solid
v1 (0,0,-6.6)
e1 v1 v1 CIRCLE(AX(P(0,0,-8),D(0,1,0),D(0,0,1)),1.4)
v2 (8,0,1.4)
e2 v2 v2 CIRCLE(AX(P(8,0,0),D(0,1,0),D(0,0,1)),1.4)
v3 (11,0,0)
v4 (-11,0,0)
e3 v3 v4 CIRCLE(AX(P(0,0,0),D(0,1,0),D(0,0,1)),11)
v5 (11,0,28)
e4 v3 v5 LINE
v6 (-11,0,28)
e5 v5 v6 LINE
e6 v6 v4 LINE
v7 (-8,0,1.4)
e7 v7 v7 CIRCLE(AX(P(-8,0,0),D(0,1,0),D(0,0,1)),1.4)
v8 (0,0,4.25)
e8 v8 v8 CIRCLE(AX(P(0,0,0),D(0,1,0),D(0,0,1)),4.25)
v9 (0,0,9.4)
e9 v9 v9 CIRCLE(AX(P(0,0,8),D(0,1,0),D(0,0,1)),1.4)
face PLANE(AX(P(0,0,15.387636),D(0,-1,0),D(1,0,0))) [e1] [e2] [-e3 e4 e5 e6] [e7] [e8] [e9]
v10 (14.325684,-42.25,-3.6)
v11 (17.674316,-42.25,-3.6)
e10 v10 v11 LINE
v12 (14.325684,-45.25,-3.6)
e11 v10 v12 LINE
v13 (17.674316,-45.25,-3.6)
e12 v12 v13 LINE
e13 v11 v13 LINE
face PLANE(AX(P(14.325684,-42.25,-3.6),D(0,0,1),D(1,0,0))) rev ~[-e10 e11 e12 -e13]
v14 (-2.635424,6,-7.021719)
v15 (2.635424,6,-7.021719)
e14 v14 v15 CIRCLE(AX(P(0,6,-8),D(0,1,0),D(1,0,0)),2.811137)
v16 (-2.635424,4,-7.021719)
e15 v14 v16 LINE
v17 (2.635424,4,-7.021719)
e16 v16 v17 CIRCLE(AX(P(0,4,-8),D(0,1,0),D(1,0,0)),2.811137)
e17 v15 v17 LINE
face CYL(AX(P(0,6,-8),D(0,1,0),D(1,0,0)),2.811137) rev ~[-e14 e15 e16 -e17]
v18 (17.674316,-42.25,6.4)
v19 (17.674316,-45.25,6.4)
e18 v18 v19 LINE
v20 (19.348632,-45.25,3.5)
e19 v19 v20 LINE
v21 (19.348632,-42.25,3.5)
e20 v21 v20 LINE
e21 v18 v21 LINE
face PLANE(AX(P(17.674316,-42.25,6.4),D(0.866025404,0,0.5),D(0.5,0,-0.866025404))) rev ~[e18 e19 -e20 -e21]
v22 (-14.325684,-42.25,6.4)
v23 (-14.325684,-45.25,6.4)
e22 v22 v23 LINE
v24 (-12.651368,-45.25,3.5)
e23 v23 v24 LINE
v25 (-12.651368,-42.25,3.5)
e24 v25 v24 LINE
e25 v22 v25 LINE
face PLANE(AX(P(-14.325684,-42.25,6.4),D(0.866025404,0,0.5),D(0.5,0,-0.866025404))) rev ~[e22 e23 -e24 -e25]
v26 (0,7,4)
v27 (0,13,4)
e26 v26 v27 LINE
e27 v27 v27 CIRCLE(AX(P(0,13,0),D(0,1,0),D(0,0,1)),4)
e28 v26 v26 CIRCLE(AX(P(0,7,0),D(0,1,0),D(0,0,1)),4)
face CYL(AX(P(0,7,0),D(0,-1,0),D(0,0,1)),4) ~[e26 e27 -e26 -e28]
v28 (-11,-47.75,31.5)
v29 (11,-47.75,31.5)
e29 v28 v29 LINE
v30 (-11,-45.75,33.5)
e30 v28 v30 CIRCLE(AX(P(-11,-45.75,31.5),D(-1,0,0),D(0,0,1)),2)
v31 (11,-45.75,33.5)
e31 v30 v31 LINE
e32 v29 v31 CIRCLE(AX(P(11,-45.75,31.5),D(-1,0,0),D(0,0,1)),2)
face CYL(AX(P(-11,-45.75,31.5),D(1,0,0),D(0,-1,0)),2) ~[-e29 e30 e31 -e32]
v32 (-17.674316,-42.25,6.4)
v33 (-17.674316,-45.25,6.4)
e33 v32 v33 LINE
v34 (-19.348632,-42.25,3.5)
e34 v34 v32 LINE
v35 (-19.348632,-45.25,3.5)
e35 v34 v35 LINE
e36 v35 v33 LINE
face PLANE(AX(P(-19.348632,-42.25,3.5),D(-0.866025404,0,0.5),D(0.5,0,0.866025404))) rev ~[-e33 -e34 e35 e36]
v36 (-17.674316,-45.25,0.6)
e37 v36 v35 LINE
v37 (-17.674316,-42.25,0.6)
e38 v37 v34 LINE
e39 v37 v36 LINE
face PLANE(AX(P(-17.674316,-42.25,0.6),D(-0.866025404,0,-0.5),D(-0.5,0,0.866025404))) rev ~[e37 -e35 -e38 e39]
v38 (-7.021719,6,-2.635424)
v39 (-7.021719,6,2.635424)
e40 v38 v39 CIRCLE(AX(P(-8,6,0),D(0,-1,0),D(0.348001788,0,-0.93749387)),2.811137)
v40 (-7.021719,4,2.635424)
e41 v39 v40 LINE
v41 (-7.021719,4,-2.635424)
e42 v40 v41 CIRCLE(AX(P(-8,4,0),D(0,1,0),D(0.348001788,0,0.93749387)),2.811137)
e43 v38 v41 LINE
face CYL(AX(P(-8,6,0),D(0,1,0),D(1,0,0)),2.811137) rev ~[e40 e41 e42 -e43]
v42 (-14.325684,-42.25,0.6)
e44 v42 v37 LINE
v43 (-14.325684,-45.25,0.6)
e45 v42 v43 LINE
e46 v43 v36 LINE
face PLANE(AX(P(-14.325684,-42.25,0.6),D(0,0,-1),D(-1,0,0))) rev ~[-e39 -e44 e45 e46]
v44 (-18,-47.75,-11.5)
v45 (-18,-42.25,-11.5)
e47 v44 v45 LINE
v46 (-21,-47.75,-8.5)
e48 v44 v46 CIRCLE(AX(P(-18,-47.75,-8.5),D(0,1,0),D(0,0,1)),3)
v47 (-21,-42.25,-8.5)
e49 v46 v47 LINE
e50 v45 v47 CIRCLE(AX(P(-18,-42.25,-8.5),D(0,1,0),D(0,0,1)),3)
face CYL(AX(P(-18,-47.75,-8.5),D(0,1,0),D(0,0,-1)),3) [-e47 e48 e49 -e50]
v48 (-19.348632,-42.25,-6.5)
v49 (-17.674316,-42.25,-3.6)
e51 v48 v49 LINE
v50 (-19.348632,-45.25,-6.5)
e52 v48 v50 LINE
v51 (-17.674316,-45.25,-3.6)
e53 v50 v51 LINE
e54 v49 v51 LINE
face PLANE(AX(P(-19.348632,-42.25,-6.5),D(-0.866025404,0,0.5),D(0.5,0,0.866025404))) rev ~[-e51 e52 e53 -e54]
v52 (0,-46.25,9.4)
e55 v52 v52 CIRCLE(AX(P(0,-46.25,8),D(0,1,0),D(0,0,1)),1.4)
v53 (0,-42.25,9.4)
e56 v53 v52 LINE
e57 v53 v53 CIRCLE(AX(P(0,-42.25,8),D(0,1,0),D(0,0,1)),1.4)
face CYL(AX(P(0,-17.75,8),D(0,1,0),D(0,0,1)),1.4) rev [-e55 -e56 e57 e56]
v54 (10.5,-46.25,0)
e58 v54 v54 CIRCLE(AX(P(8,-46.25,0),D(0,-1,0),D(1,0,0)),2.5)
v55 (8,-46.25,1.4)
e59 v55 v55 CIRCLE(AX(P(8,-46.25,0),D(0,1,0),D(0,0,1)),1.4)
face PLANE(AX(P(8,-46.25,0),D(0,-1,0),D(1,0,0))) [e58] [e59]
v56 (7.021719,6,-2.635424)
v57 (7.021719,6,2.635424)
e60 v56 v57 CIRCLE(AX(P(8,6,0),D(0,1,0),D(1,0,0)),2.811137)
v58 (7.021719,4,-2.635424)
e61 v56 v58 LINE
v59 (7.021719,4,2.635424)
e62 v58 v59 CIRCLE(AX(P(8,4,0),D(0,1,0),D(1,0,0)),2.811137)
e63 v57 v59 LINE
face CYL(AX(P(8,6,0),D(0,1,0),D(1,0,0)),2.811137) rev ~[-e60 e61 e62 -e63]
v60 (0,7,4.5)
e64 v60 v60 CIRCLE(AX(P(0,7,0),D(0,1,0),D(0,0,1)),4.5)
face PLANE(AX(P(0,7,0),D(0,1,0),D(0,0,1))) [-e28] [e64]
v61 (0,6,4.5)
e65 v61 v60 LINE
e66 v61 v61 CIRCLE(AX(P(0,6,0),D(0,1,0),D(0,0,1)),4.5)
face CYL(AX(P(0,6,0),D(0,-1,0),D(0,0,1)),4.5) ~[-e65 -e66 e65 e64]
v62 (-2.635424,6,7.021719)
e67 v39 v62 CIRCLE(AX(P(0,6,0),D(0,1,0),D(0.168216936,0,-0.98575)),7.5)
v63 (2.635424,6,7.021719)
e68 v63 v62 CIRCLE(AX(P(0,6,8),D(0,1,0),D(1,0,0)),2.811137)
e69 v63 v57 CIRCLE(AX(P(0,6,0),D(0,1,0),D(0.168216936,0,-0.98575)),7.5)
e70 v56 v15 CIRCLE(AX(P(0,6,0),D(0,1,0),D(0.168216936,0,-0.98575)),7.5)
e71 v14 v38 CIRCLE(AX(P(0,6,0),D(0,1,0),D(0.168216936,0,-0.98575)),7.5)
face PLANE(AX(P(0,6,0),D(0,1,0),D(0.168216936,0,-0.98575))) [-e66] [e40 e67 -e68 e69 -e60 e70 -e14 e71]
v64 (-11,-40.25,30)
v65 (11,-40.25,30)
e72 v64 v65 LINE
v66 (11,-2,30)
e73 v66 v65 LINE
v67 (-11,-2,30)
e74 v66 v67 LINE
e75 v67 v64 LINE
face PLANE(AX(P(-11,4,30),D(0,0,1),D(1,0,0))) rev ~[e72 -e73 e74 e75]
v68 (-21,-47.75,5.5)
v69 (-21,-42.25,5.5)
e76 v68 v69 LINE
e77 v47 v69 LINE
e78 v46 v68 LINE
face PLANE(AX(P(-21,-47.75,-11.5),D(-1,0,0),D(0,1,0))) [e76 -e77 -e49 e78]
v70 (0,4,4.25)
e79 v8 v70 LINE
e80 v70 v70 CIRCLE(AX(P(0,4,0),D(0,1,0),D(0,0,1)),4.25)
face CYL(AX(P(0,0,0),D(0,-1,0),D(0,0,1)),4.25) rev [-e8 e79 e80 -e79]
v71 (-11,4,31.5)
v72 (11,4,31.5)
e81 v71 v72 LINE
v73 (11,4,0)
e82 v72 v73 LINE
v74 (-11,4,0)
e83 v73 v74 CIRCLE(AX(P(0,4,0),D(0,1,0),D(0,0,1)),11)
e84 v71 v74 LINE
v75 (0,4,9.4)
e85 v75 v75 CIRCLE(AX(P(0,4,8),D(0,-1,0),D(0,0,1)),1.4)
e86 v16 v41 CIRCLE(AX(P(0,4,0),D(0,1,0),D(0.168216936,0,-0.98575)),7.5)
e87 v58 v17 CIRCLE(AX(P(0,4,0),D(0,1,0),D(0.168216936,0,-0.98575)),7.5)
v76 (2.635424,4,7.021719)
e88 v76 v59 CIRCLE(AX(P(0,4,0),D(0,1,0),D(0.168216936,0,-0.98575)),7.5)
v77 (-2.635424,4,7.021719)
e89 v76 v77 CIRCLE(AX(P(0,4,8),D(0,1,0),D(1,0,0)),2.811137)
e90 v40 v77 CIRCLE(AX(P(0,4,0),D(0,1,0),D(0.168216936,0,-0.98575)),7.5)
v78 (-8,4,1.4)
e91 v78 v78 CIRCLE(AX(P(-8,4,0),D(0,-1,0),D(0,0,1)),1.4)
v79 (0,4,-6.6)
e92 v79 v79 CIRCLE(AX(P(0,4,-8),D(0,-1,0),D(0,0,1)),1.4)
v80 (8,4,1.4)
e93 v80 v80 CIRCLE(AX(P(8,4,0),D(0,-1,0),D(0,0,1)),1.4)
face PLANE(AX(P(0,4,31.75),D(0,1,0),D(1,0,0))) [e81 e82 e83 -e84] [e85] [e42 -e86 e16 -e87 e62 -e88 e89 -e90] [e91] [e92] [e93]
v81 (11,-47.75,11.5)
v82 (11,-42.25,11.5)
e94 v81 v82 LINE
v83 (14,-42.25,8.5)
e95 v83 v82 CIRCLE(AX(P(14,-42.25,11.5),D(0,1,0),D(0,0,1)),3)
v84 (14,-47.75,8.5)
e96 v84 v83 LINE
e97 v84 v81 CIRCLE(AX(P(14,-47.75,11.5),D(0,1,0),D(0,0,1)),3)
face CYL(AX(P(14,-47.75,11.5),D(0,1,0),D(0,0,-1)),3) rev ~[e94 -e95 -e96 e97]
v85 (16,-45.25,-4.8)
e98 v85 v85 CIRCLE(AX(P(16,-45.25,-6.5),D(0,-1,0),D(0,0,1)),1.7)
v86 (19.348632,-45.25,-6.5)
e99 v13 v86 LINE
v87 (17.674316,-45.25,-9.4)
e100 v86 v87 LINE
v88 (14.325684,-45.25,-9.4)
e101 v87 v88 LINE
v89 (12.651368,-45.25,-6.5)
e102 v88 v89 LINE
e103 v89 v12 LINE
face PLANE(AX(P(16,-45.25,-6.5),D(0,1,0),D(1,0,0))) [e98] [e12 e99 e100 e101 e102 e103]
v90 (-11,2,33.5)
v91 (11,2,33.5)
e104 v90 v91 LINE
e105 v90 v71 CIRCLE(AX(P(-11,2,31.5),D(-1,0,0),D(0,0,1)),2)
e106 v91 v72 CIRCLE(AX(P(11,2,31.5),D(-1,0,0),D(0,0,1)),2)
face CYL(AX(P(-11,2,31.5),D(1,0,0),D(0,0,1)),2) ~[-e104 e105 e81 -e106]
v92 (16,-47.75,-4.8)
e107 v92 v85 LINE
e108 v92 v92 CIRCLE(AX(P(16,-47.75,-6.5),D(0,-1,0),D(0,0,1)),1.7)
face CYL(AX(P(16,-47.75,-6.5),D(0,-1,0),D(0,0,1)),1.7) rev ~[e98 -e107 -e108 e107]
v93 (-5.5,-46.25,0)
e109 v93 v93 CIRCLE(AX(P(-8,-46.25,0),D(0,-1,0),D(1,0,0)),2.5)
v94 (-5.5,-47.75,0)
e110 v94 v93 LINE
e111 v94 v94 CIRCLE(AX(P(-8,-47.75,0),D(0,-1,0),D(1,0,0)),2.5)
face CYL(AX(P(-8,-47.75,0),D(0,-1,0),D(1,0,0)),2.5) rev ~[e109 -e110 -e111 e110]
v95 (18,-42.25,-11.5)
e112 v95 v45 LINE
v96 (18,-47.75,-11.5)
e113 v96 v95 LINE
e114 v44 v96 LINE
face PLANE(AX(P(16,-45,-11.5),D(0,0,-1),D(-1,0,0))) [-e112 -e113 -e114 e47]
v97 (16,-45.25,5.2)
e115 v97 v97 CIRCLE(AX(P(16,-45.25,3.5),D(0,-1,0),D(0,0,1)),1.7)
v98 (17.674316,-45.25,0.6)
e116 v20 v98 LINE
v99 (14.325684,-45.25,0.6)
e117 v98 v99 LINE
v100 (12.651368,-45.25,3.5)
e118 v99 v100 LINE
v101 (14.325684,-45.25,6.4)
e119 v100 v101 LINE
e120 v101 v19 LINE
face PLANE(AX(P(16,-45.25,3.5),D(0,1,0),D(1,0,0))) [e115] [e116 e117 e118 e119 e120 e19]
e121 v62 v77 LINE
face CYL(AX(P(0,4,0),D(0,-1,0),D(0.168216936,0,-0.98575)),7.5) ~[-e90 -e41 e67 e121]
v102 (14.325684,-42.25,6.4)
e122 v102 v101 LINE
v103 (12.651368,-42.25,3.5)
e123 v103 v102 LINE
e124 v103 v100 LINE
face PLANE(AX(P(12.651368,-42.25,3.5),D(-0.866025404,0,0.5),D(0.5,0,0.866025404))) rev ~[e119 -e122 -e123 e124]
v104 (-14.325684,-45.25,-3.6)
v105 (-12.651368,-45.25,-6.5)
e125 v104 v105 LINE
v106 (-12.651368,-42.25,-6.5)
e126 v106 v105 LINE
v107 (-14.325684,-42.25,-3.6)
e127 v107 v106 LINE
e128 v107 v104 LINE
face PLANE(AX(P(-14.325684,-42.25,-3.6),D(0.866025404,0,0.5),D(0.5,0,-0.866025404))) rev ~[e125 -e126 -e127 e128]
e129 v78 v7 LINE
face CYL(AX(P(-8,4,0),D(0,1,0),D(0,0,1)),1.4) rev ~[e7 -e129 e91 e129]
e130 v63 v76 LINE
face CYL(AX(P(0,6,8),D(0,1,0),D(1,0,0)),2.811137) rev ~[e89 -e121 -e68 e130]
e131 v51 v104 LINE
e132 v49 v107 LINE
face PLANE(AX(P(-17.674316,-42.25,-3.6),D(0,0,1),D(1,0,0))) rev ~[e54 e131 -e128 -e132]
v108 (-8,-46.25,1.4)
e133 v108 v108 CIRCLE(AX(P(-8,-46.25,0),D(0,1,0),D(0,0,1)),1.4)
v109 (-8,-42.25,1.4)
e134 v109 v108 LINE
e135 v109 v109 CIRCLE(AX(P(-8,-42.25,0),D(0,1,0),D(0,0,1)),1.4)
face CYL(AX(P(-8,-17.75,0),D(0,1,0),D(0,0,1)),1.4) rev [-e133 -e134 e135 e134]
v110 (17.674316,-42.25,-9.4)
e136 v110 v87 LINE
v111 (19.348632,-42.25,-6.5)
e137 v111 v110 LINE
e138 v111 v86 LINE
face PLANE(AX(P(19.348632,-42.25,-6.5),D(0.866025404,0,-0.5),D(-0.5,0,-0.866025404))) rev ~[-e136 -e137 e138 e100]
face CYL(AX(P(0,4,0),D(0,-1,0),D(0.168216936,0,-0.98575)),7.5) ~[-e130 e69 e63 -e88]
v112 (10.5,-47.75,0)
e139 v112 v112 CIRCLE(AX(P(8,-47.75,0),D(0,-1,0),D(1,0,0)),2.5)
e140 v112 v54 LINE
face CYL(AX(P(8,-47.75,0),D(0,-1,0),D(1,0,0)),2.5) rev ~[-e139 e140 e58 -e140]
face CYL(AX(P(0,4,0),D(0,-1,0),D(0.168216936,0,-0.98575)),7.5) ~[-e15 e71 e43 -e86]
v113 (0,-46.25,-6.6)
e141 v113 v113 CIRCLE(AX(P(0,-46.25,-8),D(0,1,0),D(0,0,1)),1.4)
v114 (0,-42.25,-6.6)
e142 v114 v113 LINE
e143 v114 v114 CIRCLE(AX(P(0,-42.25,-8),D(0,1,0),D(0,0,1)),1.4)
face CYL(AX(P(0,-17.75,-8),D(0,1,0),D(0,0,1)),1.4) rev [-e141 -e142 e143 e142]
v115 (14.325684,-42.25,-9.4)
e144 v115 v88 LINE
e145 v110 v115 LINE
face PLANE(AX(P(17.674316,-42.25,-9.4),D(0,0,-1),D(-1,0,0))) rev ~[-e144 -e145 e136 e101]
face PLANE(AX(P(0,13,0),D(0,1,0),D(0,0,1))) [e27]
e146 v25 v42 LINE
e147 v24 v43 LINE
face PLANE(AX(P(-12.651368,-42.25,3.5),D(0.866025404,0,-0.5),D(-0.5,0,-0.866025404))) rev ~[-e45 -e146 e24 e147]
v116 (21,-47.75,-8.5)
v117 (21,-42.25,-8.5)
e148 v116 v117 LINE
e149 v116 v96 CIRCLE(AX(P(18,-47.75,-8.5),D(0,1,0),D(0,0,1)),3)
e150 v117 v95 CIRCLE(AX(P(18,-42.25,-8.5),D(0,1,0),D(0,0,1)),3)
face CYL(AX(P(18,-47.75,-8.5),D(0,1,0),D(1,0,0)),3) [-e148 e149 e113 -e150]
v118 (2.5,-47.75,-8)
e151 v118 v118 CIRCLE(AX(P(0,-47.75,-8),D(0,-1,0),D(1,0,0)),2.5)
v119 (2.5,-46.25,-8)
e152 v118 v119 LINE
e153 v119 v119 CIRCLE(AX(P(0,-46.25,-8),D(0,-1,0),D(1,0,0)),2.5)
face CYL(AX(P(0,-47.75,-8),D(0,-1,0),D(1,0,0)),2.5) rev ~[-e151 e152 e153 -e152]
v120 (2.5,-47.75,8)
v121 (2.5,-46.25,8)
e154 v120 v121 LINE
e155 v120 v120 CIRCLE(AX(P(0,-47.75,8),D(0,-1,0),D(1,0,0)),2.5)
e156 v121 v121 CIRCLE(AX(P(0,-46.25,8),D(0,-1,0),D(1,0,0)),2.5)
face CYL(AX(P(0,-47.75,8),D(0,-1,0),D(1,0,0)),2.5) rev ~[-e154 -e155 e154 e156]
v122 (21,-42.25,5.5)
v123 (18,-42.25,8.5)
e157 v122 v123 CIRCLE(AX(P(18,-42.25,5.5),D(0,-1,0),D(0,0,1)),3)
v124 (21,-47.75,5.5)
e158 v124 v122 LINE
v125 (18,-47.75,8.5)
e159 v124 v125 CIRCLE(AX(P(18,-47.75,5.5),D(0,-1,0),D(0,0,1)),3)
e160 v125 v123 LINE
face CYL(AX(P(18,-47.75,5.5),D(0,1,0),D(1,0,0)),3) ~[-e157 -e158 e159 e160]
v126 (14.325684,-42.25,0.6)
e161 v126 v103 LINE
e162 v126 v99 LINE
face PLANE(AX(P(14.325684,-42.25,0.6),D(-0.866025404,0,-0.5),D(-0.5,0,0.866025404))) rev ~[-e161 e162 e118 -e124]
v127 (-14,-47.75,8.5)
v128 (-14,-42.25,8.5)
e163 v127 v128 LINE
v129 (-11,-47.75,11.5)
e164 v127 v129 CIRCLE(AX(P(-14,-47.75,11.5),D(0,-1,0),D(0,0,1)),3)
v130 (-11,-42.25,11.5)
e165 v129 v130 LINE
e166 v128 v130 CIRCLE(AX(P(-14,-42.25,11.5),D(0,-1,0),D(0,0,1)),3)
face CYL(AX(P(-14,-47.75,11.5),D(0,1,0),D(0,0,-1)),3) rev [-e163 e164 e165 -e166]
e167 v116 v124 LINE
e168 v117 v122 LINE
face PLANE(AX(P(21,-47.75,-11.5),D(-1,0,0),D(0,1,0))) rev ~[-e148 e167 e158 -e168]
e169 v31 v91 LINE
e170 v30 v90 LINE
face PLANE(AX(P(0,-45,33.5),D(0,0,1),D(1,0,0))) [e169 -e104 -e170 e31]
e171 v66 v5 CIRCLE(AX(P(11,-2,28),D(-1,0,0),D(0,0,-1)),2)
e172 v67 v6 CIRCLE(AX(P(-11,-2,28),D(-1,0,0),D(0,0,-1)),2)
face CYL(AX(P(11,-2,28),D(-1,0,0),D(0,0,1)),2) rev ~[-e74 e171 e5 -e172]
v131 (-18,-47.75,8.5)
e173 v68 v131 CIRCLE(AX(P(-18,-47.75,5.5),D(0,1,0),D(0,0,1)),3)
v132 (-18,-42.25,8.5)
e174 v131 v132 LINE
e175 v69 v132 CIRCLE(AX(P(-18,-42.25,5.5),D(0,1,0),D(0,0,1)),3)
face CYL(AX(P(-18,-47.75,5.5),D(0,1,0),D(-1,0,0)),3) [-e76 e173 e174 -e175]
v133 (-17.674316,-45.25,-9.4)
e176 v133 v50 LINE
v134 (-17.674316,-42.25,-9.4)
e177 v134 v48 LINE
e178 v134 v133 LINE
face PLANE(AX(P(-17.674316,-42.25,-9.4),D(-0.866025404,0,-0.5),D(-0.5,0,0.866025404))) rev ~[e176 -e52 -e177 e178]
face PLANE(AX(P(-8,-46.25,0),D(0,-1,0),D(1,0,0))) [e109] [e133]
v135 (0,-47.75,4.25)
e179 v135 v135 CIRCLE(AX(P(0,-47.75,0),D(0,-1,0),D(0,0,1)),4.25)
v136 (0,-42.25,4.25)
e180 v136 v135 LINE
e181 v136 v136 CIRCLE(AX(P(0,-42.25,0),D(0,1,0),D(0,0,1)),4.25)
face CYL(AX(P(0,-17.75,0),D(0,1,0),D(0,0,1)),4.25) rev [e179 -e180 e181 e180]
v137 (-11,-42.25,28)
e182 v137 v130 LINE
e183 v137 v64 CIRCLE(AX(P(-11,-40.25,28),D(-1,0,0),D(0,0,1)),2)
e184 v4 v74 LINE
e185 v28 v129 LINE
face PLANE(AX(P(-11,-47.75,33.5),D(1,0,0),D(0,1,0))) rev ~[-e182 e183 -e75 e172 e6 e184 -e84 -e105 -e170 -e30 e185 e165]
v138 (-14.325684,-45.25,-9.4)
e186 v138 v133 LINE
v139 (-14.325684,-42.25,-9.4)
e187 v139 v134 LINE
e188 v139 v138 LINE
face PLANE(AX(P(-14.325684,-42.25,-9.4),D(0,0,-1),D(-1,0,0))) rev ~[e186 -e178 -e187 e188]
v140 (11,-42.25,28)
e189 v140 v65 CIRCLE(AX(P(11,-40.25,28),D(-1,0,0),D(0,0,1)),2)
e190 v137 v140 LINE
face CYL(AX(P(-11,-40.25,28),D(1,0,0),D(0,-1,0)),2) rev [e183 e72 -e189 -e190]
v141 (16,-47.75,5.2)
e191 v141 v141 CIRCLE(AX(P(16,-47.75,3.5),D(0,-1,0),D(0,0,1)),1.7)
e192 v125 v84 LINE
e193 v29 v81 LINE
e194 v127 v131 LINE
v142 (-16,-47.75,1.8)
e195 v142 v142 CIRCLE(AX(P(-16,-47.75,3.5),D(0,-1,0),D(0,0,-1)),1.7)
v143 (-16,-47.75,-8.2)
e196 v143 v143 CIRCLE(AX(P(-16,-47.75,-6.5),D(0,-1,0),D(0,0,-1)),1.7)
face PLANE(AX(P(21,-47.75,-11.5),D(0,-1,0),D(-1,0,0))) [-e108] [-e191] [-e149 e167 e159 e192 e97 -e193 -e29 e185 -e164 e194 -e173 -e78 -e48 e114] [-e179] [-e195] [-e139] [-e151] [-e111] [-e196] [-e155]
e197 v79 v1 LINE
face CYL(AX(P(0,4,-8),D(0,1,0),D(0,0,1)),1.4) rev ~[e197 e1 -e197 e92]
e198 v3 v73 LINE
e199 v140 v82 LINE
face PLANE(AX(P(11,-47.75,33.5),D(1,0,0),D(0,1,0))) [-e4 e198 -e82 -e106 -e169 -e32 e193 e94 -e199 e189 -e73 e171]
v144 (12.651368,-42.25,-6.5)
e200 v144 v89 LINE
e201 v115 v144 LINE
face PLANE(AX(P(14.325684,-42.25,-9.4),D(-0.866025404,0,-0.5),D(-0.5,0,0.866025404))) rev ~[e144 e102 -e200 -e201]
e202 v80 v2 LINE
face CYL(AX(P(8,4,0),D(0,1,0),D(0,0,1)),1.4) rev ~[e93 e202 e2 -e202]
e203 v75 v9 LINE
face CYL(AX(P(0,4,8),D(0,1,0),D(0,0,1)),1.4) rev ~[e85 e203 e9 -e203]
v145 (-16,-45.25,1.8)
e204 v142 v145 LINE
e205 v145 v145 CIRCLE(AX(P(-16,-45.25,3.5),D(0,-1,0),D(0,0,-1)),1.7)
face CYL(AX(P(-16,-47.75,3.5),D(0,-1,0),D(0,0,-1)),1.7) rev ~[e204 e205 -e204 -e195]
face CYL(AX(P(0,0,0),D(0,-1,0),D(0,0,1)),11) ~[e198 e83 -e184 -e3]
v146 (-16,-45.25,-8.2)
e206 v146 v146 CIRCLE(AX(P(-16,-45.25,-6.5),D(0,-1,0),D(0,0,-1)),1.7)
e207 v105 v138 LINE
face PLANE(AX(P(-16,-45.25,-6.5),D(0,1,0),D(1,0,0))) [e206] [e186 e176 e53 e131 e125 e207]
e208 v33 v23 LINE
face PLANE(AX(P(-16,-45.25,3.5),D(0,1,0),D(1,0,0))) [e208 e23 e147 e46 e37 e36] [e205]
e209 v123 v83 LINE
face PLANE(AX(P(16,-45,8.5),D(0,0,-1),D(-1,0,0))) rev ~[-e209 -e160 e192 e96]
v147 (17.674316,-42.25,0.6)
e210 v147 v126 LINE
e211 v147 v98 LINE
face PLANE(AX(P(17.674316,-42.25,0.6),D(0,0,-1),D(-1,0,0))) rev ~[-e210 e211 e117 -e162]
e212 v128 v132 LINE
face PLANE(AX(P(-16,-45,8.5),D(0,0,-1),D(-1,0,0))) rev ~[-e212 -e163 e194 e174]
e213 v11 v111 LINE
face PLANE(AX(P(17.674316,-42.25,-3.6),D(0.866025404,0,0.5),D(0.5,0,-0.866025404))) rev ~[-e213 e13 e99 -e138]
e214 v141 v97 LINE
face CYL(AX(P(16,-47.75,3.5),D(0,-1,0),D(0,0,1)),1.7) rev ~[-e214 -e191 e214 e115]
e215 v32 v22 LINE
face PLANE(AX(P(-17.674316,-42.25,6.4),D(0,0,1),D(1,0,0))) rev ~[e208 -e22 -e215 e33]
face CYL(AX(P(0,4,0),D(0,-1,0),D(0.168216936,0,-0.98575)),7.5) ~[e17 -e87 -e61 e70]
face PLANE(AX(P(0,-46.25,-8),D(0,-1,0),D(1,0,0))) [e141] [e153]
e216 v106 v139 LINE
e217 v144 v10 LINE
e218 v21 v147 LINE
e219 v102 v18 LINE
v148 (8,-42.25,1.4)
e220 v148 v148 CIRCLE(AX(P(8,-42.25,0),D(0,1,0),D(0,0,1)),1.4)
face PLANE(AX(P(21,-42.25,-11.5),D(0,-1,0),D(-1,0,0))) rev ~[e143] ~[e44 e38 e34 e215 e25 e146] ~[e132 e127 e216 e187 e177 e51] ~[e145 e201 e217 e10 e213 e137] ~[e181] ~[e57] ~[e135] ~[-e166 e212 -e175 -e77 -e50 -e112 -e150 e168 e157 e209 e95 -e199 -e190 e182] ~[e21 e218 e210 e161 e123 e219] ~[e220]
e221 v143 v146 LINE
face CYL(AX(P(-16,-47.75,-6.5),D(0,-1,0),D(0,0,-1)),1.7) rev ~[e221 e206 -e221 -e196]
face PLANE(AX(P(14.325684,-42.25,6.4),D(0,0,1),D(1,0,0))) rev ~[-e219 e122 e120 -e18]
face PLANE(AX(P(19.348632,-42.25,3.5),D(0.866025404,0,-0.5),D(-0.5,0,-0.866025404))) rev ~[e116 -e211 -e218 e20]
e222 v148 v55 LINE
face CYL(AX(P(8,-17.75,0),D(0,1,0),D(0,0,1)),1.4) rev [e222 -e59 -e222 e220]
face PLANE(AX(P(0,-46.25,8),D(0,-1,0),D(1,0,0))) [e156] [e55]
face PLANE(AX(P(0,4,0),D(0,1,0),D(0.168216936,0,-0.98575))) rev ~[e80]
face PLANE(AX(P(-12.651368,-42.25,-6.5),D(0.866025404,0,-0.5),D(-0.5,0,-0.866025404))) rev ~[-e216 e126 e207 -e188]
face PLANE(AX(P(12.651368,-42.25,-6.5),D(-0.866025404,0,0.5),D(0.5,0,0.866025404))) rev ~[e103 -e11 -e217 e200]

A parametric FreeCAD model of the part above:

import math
import FreeCAD as App
import Part
import Sketcher
Q = App.Units.Quantity


def edges_at(feature, points):
    """Names of the edges that pass closest to the given points."""
    edges = feature.Shape.Edges
    near = lambda p: min(range(len(edges)), key=lambda i: edges[i].distToShape(Part.Vertex(*p))[0])
    return sorted({f"Edge{near(p) + 1}" for p in points})

doc = App.newDocument("Part")
params = doc.addObject("Spreadsheet::Sheet", "Params")
for row, (alias, value) in enumerate([
    ("sketch1_diameter", "22 mm"),
    ("sketch1_diameter2", "8.5 mm"),
    ("pad1_length", "4 mm"),
    ("sketch2_diameter", "2.8 mm"),
    ("sketch3_diameter", "15 mm"),
    ("pad2_length", "2 mm"),
    ("pocket2_length", "2 mm"),
    ("sketch5_diameter", "9 mm"),
    ("pad3_length", "7 mm"),
    ("sketch6_diameter", "9 mm"),
    ("sketch6_diameter2", "8 mm"),
    ("pocket3_length", "6 mm"),
    ("sketch7_radius", "11 mm"),
    ("sketch7_height", "30 mm"),
    ("pad4_length", "4 mm"),
    ("sketch8_width", "22 mm"),
    ("sketch8_height", "3.5 mm"),
    ("pad5_length", "46.25 mm"),
    ("sketch9_width", "22 mm"),
    ("sketch9_height", "5.5 mm"),
    ("pad6_length", "45 mm"),
    ("sketch10_diameter", "8.5 mm"),
    ("sketch10_diameter2", "2.8 mm"),
    ("pocket4_length", "30 mm"),
    ("sketch11_width", "10 mm"),
    ("sketch11_height", "5.5 mm"),
    ("pad7_length", "20 mm"),
    ("sketch12_diameter", "3.4 mm"),
    ("pocket5_length", "30 mm"),
    ("fillet_radius", "3 mm"),
    ("fillet2_radius", "2 mm"),
    ("sketch13_diameter", "5 mm"),
    ("pocket6_length", "1.5 mm"),
    ("pocket7_length", "3 mm"),
], start=1):
    params.set(f"A{row}", alias)
    params.set(f"B{row}", "=" + value)
    params.setAlias(f"B{row}", alias)

body = doc.addObject("PartDesign::Body", "Body")

sketch1 = body.newObject("Sketcher::SketchObject", "Sketch")
sketch1.AttachmentSupport = (doc.getObject("XZ_Plane"), [""])
sketch1.MapMode = "FlatFace"
sketch1.addGeometry(Part.Circle(App.Vector(0, 0, 0), App.Vector(0, 0, 1), 11), False)
sketch1.addGeometry(Part.Circle(App.Vector(0, 0, 0), App.Vector(0, 0, 1), 4.25), False)
sketch1.addConstraint(Sketcher.Constraint("Coincident", 0, 3, -1, 1))
sketch1.addConstraint(Sketcher.Constraint("Coincident", 1, 3, -1, 1))
sketch1.addConstraint(Sketcher.Constraint("Diameter", 0, Q("22 mm")))
sketch1.addConstraint(Sketcher.Constraint("Diameter", 1, Q("8.5 mm")))
sketch1.setExpression("Constraints[2]", "Params.sketch1_diameter")
sketch1.setExpression("Constraints[3]", "Params.sketch1_diameter2")
pad1 = body.newObject("PartDesign::Pad", "Pad")
pad1.Profile = sketch1
pad1.setExpression("Length", "Params.pad1_length")
pad1.Reversed = True

sketch2 = body.newObject("Sketcher::SketchObject", "Sketch001")
sketch2.AttachmentSupport = (doc.getObject("XZ_Plane"), [""])
sketch2.MapMode = "FlatFace"
sketch2.AttachmentOffset = App.Placement(App.Vector(0, 0, -4), App.Rotation())
sketch2.addGeometry(Part.Circle(App.Vector(0, -8, 0), App.Vector(0, 0, 1), 1.4), False)
sketch2.addGeometry(Part.Circle(App.Vector(8, 0, 0), App.Vector(0, 0, 1), 1.4), False)
sketch2.addGeometry(Part.Circle(App.Vector(0, 8, 0), App.Vector(0, 0, 1), 1.4), False)
sketch2.addGeometry(Part.Circle(App.Vector(-8, 0, 0), App.Vector(0, 0, 1), 1.4), False)
sketch2.addConstraint(Sketcher.Constraint("Equal", 0, 1))
sketch2.addConstraint(Sketcher.Constraint("Equal", 1, 2))
sketch2.addConstraint(Sketcher.Constraint("Equal", 2, 3))
sketch2.addConstraint(Sketcher.Constraint("Symmetric", 0, 3, 2, 3, -1, 1))
sketch2.addConstraint(Sketcher.Constraint("Symmetric", 1, 3, 3, 3, -1, 1))
sketch2.addConstraint(Sketcher.Constraint("PointOnObject", 0, 3, -2))
sketch2.addConstraint(Sketcher.Constraint("PointOnObject", 1, 3, -1))
sketch2.addConstraint(Sketcher.Constraint("Diameter", 0, Q("2.8 mm")))
sketch2.addConstraint(Sketcher.Constraint("DistanceY", 0, 3, -1, 1, Q("8 mm")))
sketch2.addConstraint(Sketcher.Constraint("DistanceX", -1, 1, 1, 3, Q("8 mm")))
sketch2.setExpression("Constraints[7]", "Params.sketch2_diameter")
pocket1 = body.newObject("PartDesign::Pocket", "Pocket")
pocket1.Profile = sketch2
pocket1.Type = "ThroughAll"
pocket1.Reversed = True

sketch3 = body.newObject("Sketcher::SketchObject", "Sketch002")
sketch3.AttachmentSupport = (doc.getObject("XZ_Plane"), [""])
sketch3.MapMode = "FlatFace"
sketch3.AttachmentOffset = App.Placement(App.Vector(0, 0, -4), App.Rotation())
sketch3.addGeometry(Part.Circle(App.Vector(0, 0, 0), App.Vector(0, 0, 1), 7.5), False)
sketch3.addConstraint(Sketcher.Constraint("Coincident", 0, 3, -1, 1))
sketch3.addConstraint(Sketcher.Constraint("Diameter", 0, Q("15 mm")))
sketch3.setExpression("Constraints[1]", "Params.sketch3_diameter")
pad2 = body.newObject("PartDesign::Pad", "Pad001")
pad2.Profile = sketch3
pad2.setExpression("Length", "Params.pad2_length")
pad2.Reversed = True

sketch4 = body.newObject("Sketcher::SketchObject", "Sketch003")
sketch4.AttachmentSupport = (doc.getObject("XZ_Plane"), [""])
sketch4.MapMode = "FlatFace"
sketch4.AttachmentOffset = App.Placement(App.Vector(0, 0, -6), App.Rotation())
sketch4.addGeometry(Part.Circle(App.Vector(8, 0, 0), App.Vector(0, 0, 1), 2.811137), False)
sketch4.addGeometry(Part.Circle(App.Vector(0, 8, 0), App.Vector(0, 0, 1), 2.811137), False)
sketch4.addGeometry(Part.Circle(App.Vector(-8, 0, 0), App.Vector(0, 0, 1), 2.811137), False)
sketch4.addGeometry(Part.Circle(App.Vector(0, -8, 0), App.Vector(0, 0, 1), 2.811137), False)
sketch4.addConstraint(Sketcher.Constraint("Equal", 0, 1))
sketch4.addConstraint(Sketcher.Constraint("Equal", 1, 2))
sketch4.addConstraint(Sketcher.Constraint("Equal", 2, 3))
sketch4.addConstraint(Sketcher.Constraint("Symmetric", 0, 3, 2, 3, -1, 1))
sketch4.addConstraint(Sketcher.Constraint("Symmetric", 1, 3, 3, 3, -1, 1))
sketch4.addConstraint(Sketcher.Constraint("PointOnObject", 0, 3, -1))
sketch4.addConstraint(Sketcher.Constraint("PointOnObject", 1, 3, -2))
sketch4.addConstraint(Sketcher.Constraint("DistanceX", -1, 1, 0, 3, Q("8 mm")))
sketch4.addConstraint(Sketcher.Constraint("DistanceY", -1, 1, 1, 3, Q("8 mm")))
sketch4.addConstraint(Sketcher.Constraint("Diameter", 0, Q("5.622274 mm")))
pocket2 = body.newObject("PartDesign::Pocket", "Pocket001")
pocket2.Profile = sketch4
pocket2.setExpression("Length", "Params.pocket2_length")
pocket2.Reversed = True

sketch5 = body.newObject("Sketcher::SketchObject", "Sketch004")
sketch5.AttachmentSupport = (doc.getObject("XZ_Plane"), [""])
sketch5.MapMode = "FlatFace"
sketch5.AttachmentOffset = App.Placement(App.Vector(0, 0, -6), App.Rotation())
sketch5.addGeometry(Part.Circle(App.Vector(0, 0, 0), App.Vector(0, 0, 1), 4.5), False)
sketch5.addConstraint(Sketcher.Constraint("Coincident", 0, 3, -1, 1))
sketch5.addConstraint(Sketcher.Constraint("Diameter", 0, Q("9 mm")))
sketch5.setExpression("Constraints[1]", "Params.sketch5_diameter")
pad3 = body.newObject("PartDesign::Pad", "Pad002")
pad3.Profile = sketch5
pad3.setExpression("Length", "Params.pad3_length")
pad3.Reversed = True

sketch6 = body.newObject("Sketcher::SketchObject", "Sketch005")
sketch6.AttachmentSupport = (doc.getObject("XZ_Plane"), [""])
sketch6.MapMode = "FlatFace"
sketch6.AttachmentOffset = App.Placement(App.Vector(0, 0, -7), App.Rotation())
sketch6.addGeometry(Part.Circle(App.Vector(0, 0, 0), App.Vector(0, 0, 1), 4.5), False)
sketch6.addGeometry(Part.Circle(App.Vector(0, 0, 0), App.Vector(0, 0, 1), 4), False)
sketch6.addConstraint(Sketcher.Constraint("Coincident", 0, 3, -1, 1))
sketch6.addConstraint(Sketcher.Constraint("Coincident", 1, 3, -1, 1))
sketch6.addConstraint(Sketcher.Constraint("Diameter", 0, Q("9 mm")))
sketch6.addConstraint(Sketcher.Constraint("Diameter", 1, Q("8 mm")))
sketch6.setExpression("Constraints[2]", "Params.sketch6_diameter")
sketch6.setExpression("Constraints[3]", "Params.sketch6_diameter2")
pocket3 = body.newObject("PartDesign::Pocket", "Pocket002")
pocket3.Profile = sketch6
pocket3.setExpression("Length", "Params.pocket3_length")

sketch7 = body.newObject("Sketcher::SketchObject", "Sketch006")
sketch7.AttachmentSupport = (doc.getObject("XZ_Plane"), [""])
sketch7.MapMode = "FlatFace"
sketch7.addGeometry(Part.LineSegment(App.Vector(11, 30, 0), App.Vector(-11, 30, 0)), False)
sketch7.addGeometry(Part.LineSegment(App.Vector(-11, 30, 0), App.Vector(-11, 0, 0)), False)
sketch7.addGeometry(Part.ArcOfCircle(Part.Circle(App.Vector(0, 0, 0), App.Vector(0, 0, 1), 11), math.radians(0), math.radians(180)), False)
sketch7.addGeometry(Part.LineSegment(App.Vector(11, 0, 0), App.Vector(11, 30, 0)), False)
sketch7.addConstraint(Sketcher.Constraint("Coincident", 0, 2, 1, 1))
sketch7.addConstraint(Sketcher.Constraint("Tangent", 1, 2, 2, 2))
sketch7.addConstraint(Sketcher.Constraint("Tangent", 2, 1, 3, 1))
sketch7.addConstraint(Sketcher.Constraint("Coincident", 3, 2, 0, 1))
sketch7.addConstraint(Sketcher.Constraint("Horizontal", 0))
sketch7.addConstraint(Sketcher.Constraint("Vertical", 1))
sketch7.addConstraint(Sketcher.Constraint("Vertical", 3))
sketch7.addConstraint(Sketcher.Constraint("Coincident", 2, 3, -1, 1))
sketch7.addConstraint(Sketcher.Constraint("Radius", 2, Q("11 mm")))
sketch7.addConstraint(Sketcher.Constraint("DistanceY", 1, 2, 1, 1, Q("30 mm")))
sketch7.setExpression("Constraints[8]", "Params.sketch7_radius")
sketch7.setExpression("Constraints[9]", "Params.sketch7_height")
pad4 = body.newObject("PartDesign::Pad", "Pad003")
pad4.Profile = sketch7
pad4.setExpression("Length", "Params.pad4_length")
pad4.Reversed = True

sketch8 = body.newObject("Sketcher::SketchObject", "Sketch007")
sketch8.AttachmentSupport = (doc.getObject("XZ_Plane"), [""])
sketch8.MapMode = "FlatFace"
sketch8.AttachmentOffset = App.Placement(App.Vector(0, 0, -4), App.Rotation())
sketch8.addGeometry(Part.LineSegment(App.Vector(-11, 30, 0), App.Vector(-11, 33.5, 0)), False)
sketch8.addGeometry(Part.LineSegment(App.Vector(-11, 33.5, 0), App.Vector(11, 33.5, 0)), False)
sketch8.addGeometry(Part.LineSegment(App.Vector(11, 33.5, 0), App.Vector(11, 30, 0)), False)
sketch8.addGeometry(Part.LineSegment(App.Vector(11, 30, 0), App.Vector(-11, 30, 0)), False)
sketch8.addConstraint(Sketcher.Constraint("Coincident", 0, 2, 1, 1))
sketch8.addConstraint(Sketcher.Constraint("Coincident", 1, 2, 2, 1))
sketch8.addConstraint(Sketcher.Constraint("Coincident", 2, 2, 3, 1))
sketch8.addConstraint(Sketcher.Constraint("Coincident", 3, 2, 0, 1))
sketch8.addConstraint(Sketcher.Constraint("Vertical", 0))
sketch8.addConstraint(Sketcher.Constraint("Horizontal", 1))
sketch8.addConstraint(Sketcher.Constraint("Vertical", 2))
sketch8.addConstraint(Sketcher.Constraint("Horizontal", 3))
sketch8.addConstraint(Sketcher.Constraint("DistanceX", 1, 1, 1, 2, Q("22 mm")))
sketch8.addConstraint(Sketcher.Constraint("DistanceY", 0, 1, 0, 2, Q("3.5 mm")))
sketch8.addConstraint(Sketcher.Constraint("DistanceX", 0, 2, -1, 1, Q("11 mm")))
sketch8.addConstraint(Sketcher.Constraint("DistanceY", -1, 1, 2, 2, Q("30 mm")))
sketch8.setExpression("Constraints[8]", "Params.sketch8_width")
sketch8.setExpression("Constraints[9]", "Params.sketch8_height")
pad5 = body.newObject("PartDesign::Pad", "Pad004")
pad5.Profile = sketch8
pad5.setExpression("Length", "Params.pad5_length")

sketch9 = body.newObject("Sketcher::SketchObject", "Sketch008")
sketch9.AttachmentSupport = (doc.getObject("XY_Plane"), [""])
sketch9.MapMode = "FlatFace"
sketch9.AttachmentOffset = App.Placement(App.Vector(0, 0, 33.5), App.Rotation())
sketch9.addGeometry(Part.LineSegment(App.Vector(-11, -42.25, 0), App.Vector(-11, -47.75, 0)), False)
sketch9.addGeometry(Part.LineSegment(App.Vector(-11, -47.75, 0), App.Vector(11, -47.75, 0)), False)
sketch9.addGeometry(Part.LineSegment(App.Vector(11, -47.75, 0), App.Vector(11, -42.25, 0)), False)
sketch9.addGeometry(Part.LineSegment(App.Vector(11, -42.25, 0), App.Vector(-11, -42.25, 0)), False)
sketch9.addConstraint(Sketcher.Constraint("Coincident", 0, 2, 1, 1))
sketch9.addConstraint(Sketcher.Constraint("Coincident", 1, 2, 2, 1))
sketch9.addConstraint(Sketcher.Constraint("Coincident", 2, 2, 3, 1))
sketch9.addConstraint(Sketcher.Constraint("Coincident", 3, 2, 0, 1))
sketch9.addConstraint(Sketcher.Constraint("Vertical", 0))
sketch9.addConstraint(Sketcher.Constraint("Horizontal", 1))
sketch9.addConstraint(Sketcher.Constraint("Vertical", 2))
sketch9.addConstraint(Sketcher.Constraint("Horizontal", 3))
sketch9.addConstraint(Sketcher.Constraint("DistanceX", 1, 1, 1, 2, Q("22 mm")))
sketch9.addConstraint(Sketcher.Constraint("DistanceY", 0, 2, 0, 1, Q("5.5 mm")))
sketch9.addConstraint(Sketcher.Constraint("DistanceX", 0, 2, -1, 1, Q("11 mm")))
sketch9.addConstraint(Sketcher.Constraint("DistanceY", 0, 2, -1, 1, Q("47.75 mm")))
sketch9.setExpression("Constraints[8]", "Params.sketch9_width")
sketch9.setExpression("Constraints[9]", "Params.sketch9_height")
pad6 = body.newObject("PartDesign::Pad", "Pad005")
pad6.Profile = sketch9
pad6.setExpression("Length", "Params.pad6_length")
pad6.Reversed = True

sketch10 = body.newObject("Sketcher::SketchObject", "Sketch009")
sketch10.AttachmentSupport = (doc.getObject("XZ_Plane"), [""])
sketch10.MapMode = "FlatFace"
sketch10.AttachmentOffset = App.Placement(App.Vector(0, 0, 17.75), App.Rotation())
sketch10.addGeometry(Part.Circle(App.Vector(0, 0, 0), App.Vector(0, 0, 1), 4.25), False)
sketch10.addGeometry(Part.Circle(App.Vector(-8, 0, 0), App.Vector(0, 0, 1), 1.4), False)
sketch10.addGeometry(Part.Circle(App.Vector(0, -8, 0), App.Vector(0, 0, 1), 1.4), False)
sketch10.addGeometry(Part.Circle(App.Vector(8, 0, 0), App.Vector(0, 0, 1), 1.4), False)
sketch10.addGeometry(Part.Circle(App.Vector(0, 8, 0), App.Vector(0, 0, 1), 1.4), False)
sketch10.addConstraint(Sketcher.Constraint("Coincident", 0, 3, -1, 1))
sketch10.addConstraint(Sketcher.Constraint("Equal", 1, 2))
sketch10.addConstraint(Sketcher.Constraint("Equal", 2, 3))
sketch10.addConstraint(Sketcher.Constraint("Equal", 3, 4))
sketch10.addConstraint(Sketcher.Constraint("Symmetric", 1, 3, 3, 3, -1, 1))
sketch10.addConstraint(Sketcher.Constraint("Symmetric", 2, 3, 4, 3, -1, 1))
sketch10.addConstraint(Sketcher.Constraint("PointOnObject", 1, 3, -1))
sketch10.addConstraint(Sketcher.Constraint("PointOnObject", 2, 3, -2))
sketch10.addConstraint(Sketcher.Constraint("Diameter", 0, Q("8.5 mm")))
sketch10.addConstraint(Sketcher.Constraint("Diameter", 1, Q("2.8 mm")))
sketch10.addConstraint(Sketcher.Constraint("DistanceX", 1, 3, -1, 1, Q("8 mm")))
sketch10.addConstraint(Sketcher.Constraint("DistanceY", 2, 3, -1, 1, Q("8 mm")))
sketch10.setExpression("Constraints[8]", "Params.sketch10_diameter")
sketch10.setExpression("Constraints[9]", "Params.sketch10_diameter2")
pocket4 = body.newObject("PartDesign::Pocket", "Pocket003")
pocket4.Profile = sketch10
pocket4.setExpression("Length", "Params.pocket4_length")
pocket4.Reversed = True

sketch11 = body.newObject("Sketcher::SketchObject", "Sketch010")
sketch11.AttachmentSupport = (doc.getObject("XY_Plane"), [""])
sketch11.MapMode = "FlatFace"
sketch11.AttachmentOffset = App.Placement(App.Vector(0, 0, -11.5), App.Rotation())
sketch11.addGeometry(Part.LineSegment(App.Vector(21, -42.25, 0), App.Vector(21, -47.75, 0)), False)
sketch11.addGeometry(Part.LineSegment(App.Vector(21, -47.75, 0), App.Vector(11, -47.75, 0)), False)
sketch11.addGeometry(Part.LineSegment(App.Vector(11, -47.75, 0), App.Vector(11, -42.25, 0)), False)
sketch11.addGeometry(Part.LineSegment(App.Vector(11, -42.25, 0), App.Vector(21, -42.25, 0)), False)
sketch11.addGeometry(Part.LineSegment(App.Vector(-11, -42.25, 0), App.Vector(-11, -47.75, 0)), False)
sketch11.addGeometry(Part.LineSegment(App.Vector(-11, -47.75, 0), App.Vector(-21, -47.75, 0)), False)
sketch11.addGeometry(Part.LineSegment(App.Vector(-21, -47.75, 0), App.Vector(-21, -42.25, 0)), False)
sketch11.addGeometry(Part.LineSegment(App.Vector(-21, -42.25, 0), App.Vector(-11, -42.25, 0)), False)
sketch11.addConstraint(Sketcher.Constraint("Coincident", 0, 2, 1, 1))
sketch11.addConstraint(Sketcher.Constraint("Coincident", 1, 2, 2, 1))
sketch11.addConstraint(Sketcher.Constraint("Coincident", 2, 2, 3, 1))
sketch11.addConstraint(Sketcher.Constraint("Coincident", 3, 2, 0, 1))
sketch11.addConstraint(Sketcher.Constraint("Coincident", 4, 2, 5, 1))
sketch11.addConstraint(Sketcher.Constraint("Coincident", 5, 2, 6, 1))
sketch11.addConstraint(Sketcher.Constraint("Coincident", 6, 2, 7, 1))
sketch11.addConstraint(Sketcher.Constraint("Coincident", 7, 2, 4, 1))
sketch11.addConstraint(Sketcher.Constraint("Vertical", 0))
sketch11.addConstraint(Sketcher.Constraint("Horizontal", 1))
sketch11.addConstraint(Sketcher.Constraint("Vertical", 2))
sketch11.addConstraint(Sketcher.Constraint("Horizontal", 3))
sketch11.addConstraint(Sketcher.Constraint("Vertical", 4))
sketch11.addConstraint(Sketcher.Constraint("Horizontal", 5))
sketch11.addConstraint(Sketcher.Constraint("Vertical", 6))
sketch11.addConstraint(Sketcher.Constraint("Horizontal", 7))
sketch11.addConstraint(Sketcher.Constraint("Symmetric", 1, 2, 4, 2, -2))
sketch11.addConstraint(Sketcher.Constraint("Symmetric", 3, 2, 6, 2, -2))
sketch11.addConstraint(Sketcher.Constraint("DistanceX", 1, 2, 1, 1, Q("10 mm")))
sketch11.addConstraint(Sketcher.Constraint("DistanceY", 0, 2, 0, 1, Q("5.5 mm")))
sketch11.addConstraint(Sketcher.Constraint("DistanceX", -1, 1, 0, 2, Q("21 mm")))
sketch11.addConstraint(Sketcher.Constraint("DistanceY", 0, 2, -1, 1, Q("47.75 mm")))
sketch11.setExpression("Constraints[18]", "Params.sketch11_width")
sketch11.setExpression("Constraints[19]", "Params.sketch11_height")
pad7 = body.newObject("PartDesign::Pad", "Pad006")
pad7.Profile = sketch11
pad7.setExpression("Length", "Params.pad7_length")

sketch12 = body.newObject("Sketcher::SketchObject", "Sketch011")
sketch12.AttachmentSupport = (doc.getObject("XZ_Plane"), [""])
sketch12.MapMode = "FlatFace"
sketch12.AttachmentOffset = App.Placement(App.Vector(0, 0, 47.75), App.Rotation())
sketch12.addGeometry(Part.Circle(App.Vector(-16, 3.5, 0), App.Vector(0, 0, 1), 1.7), False)
sketch12.addGeometry(Part.Circle(App.Vector(-16, -6.5, 0), App.Vector(0, 0, 1), 1.7), False)
sketch12.addGeometry(Part.Circle(App.Vector(16, -6.5, 0), App.Vector(0, 0, 1), 1.7), False)
sketch12.addGeometry(Part.Circle(App.Vector(16, 3.5, 0), App.Vector(0, 0, 1), 1.7), False)
sketch12.addConstraint(Sketcher.Constraint("Equal", 0, 1))
sketch12.addConstraint(Sketcher.Constraint("Equal", 1, 2))
sketch12.addConstraint(Sketcher.Constraint("Equal", 2, 3))
sketch12.addConstraint(Sketcher.Constraint("Symmetric", 1, 3, 2, 3, -2))
sketch12.addConstraint(Sketcher.Constraint("Symmetric", 0, 3, 3, 3, -2))
sketch12.addConstraint(Sketcher.Constraint("Vertical", 0, 3, 1, 3))
sketch12.addConstraint(Sketcher.Constraint("Diameter", 0, Q("3.4 mm")))
sketch12.addConstraint(Sketcher.Constraint("DistanceX", 0, 3, -1, 1, Q("16 mm")))
sketch12.addConstraint(Sketcher.Constraint("DistanceY", 1, 3, 0, 3, Q("10 mm")))
sketch12.addConstraint(Sketcher.Constraint("DistanceY", -1, 1, 0, 3, Q("3.5 mm")))
sketch12.setExpression("Constraints[6]", "Params.sketch12_diameter")
pocket5 = body.newObject("PartDesign::Pocket", "Pocket004")
pocket5.Profile = sketch12
pocket5.setExpression("Length", "Params.pocket5_length")
doc.recompute()

fillet = body.newObject("PartDesign::Fillet", "Fillet")
fillet.Base = (pocket5, edges_at(pocket5, [
    (21, -45, 8.5),
    (11, -45, 8.5),
    (21, -45, -11.5),
    (-21, -45, 8.5),
    (-11, -45, 8.5),
    (-21, -45, -11.5),
]))
fillet.setExpression("Radius", "Params.fillet_radius")
doc.recompute()

fillet2 = body.newObject("PartDesign::Fillet", "Fillet001")
fillet2.Base = (fillet, edges_at(fillet, [
    (0, 0, 30),
    (0, -42.25, 30),
    (0, 4, 33.5),
    (0, -47.75, 33.5),
]))
fillet2.setExpression("Radius", "Params.fillet2_radius")

sketch13 = body.newObject("Sketcher::SketchObject", "Sketch012")
sketch13.AttachmentSupport = (doc.getObject("XZ_Plane"), [""])
sketch13.MapMode = "FlatFace"
sketch13.AttachmentOffset = App.Placement(App.Vector(0, 0, 47.75), App.Rotation())
sketch13.addGeometry(Part.Circle(App.Vector(-8, 0, 0), App.Vector(0, 0, 1), 2.5), False)
sketch13.addGeometry(Part.Circle(App.Vector(0, 8, 0), App.Vector(0, 0, 1), 2.5), False)
sketch13.addGeometry(Part.Circle(App.Vector(8, 0, 0), App.Vector(0, 0, 1), 2.5), False)
sketch13.addGeometry(Part.Circle(App.Vector(0, -8, 0), App.Vector(0, 0, 1), 2.5), False)
sketch13.addConstraint(Sketcher.Constraint("Equal", 0, 1))
sketch13.addConstraint(Sketcher.Constraint("Equal", 1, 2))
sketch13.addConstraint(Sketcher.Constraint("Equal", 2, 3))
sketch13.addConstraint(Sketcher.Constraint("Symmetric", 0, 3, 2, 3, -1, 1))
sketch13.addConstraint(Sketcher.Constraint("Symmetric", 1, 3, 3, 3, -1, 1))
sketch13.addConstraint(Sketcher.Constraint("PointOnObject", 0, 3, -1))
sketch13.addConstraint(Sketcher.Constraint("PointOnObject", 1, 3, -2))
sketch13.addConstraint(Sketcher.Constraint("Diameter", 0, Q("5 mm")))
sketch13.addConstraint(Sketcher.Constraint("DistanceX", 0, 3, -1, 1, Q("8 mm")))
sketch13.addConstraint(Sketcher.Constraint("DistanceY", -1, 1, 1, 3, Q("8 mm")))
sketch13.setExpression("Constraints[7]", "Params.sketch13_diameter")
pocket6 = body.newObject("PartDesign::Pocket", "Pocket005")
pocket6.Profile = sketch13
pocket6.setExpression("Length", "Params.pocket6_length")

sketch14 = body.newObject("Sketcher::SketchObject", "Sketch013")
sketch14.AttachmentSupport = (doc.getObject("XZ_Plane"), [""])
sketch14.MapMode = "FlatFace"
sketch14.AttachmentOffset = App.Placement(App.Vector(0, 0, 42.25), App.Rotation())
sketch14.addGeometry(Part.LineSegment(App.Vector(17.674316, -3.6, 0), App.Vector(19.348632, -6.5, 0)), False)
sketch14.addGeometry(Part.LineSegment(App.Vector(19.348632, -6.5, 0), App.Vector(17.674316, -9.4, 0)), False)
sketch14.addGeometry(Part.LineSegment(App.Vector(17.674316, -9.4, 0), App.Vector(14.325684, -9.4, 0)), False)
sketch14.addGeometry(Part.LineSegment(App.Vector(14.325684, -9.4, 0), App.Vector(12.651368, -6.5, 0)), False)
sketch14.addGeometry(Part.LineSegment(App.Vector(12.651368, -6.5, 0), App.Vector(14.325684, -3.6, 0)), False)
sketch14.addGeometry(Part.LineSegment(App.Vector(14.325684, -3.6, 0), App.Vector(17.674316, -3.6, 0)), False)
sketch14.addGeometry(Part.LineSegment(App.Vector(-14.325684, -3.6, 0), App.Vector(-12.651368, -6.5, 0)), False)
sketch14.addGeometry(Part.LineSegment(App.Vector(-12.651368, -6.5, 0), App.Vector(-14.325684, -9.4, 0)), False)
sketch14.addGeometry(Part.LineSegment(App.Vector(-14.325684, -9.4, 0), App.Vector(-17.674316, -9.4, 0)), False)
sketch14.addGeometry(Part.LineSegment(App.Vector(-17.674316, -9.4, 0), App.Vector(-19.348632, -6.5, 0)), False)
sketch14.addGeometry(Part.LineSegment(App.Vector(-19.348632, -6.5, 0), App.Vector(-17.674316, -3.6, 0)), False)
sketch14.addGeometry(Part.LineSegment(App.Vector(-17.674316, -3.6, 0), App.Vector(-14.325684, -3.6, 0)), False)
sketch14.addGeometry(Part.LineSegment(App.Vector(17.674316, 6.4, 0), App.Vector(19.348632, 3.5, 0)), False)
sketch14.addGeometry(Part.LineSegment(App.Vector(19.348632, 3.5, 0), App.Vector(17.674316, 0.6, 0)), False)
sketch14.addGeometry(Part.LineSegment(App.Vector(17.674316, 0.6, 0), App.Vector(14.325684, 0.6, 0)), False)
sketch14.addGeometry(Part.LineSegment(App.Vector(14.325684, 0.6, 0), App.Vector(12.651368, 3.5, 0)), False)
sketch14.addGeometry(Part.LineSegment(App.Vector(12.651368, 3.5, 0), App.Vector(14.325684, 6.4, 0)), False)
sketch14.addGeometry(Part.LineSegment(App.Vector(14.325684, 6.4, 0), App.Vector(17.674316, 6.4, 0)), False)
sketch14.addGeometry(Part.LineSegment(App.Vector(-14.325684, 6.4, 0), App.Vector(-12.651368, 3.5, 0)), False)
sketch14.addGeometry(Part.LineSegment(App.Vector(-12.651368, 3.5, 0), App.Vector(-14.325684, 0.6, 0)), False)
sketch14.addGeometry(Part.LineSegment(App.Vector(-14.325684, 0.6, 0), App.Vector(-17.674316, 0.6, 0)), False)
sketch14.addGeometry(Part.LineSegment(App.Vector(-17.674316, 0.6, 0), App.Vector(-19.348632, 3.5, 0)), False)
sketch14.addGeometry(Part.LineSegment(App.Vector(-19.348632, 3.5, 0), App.Vector(-17.674316, 6.4, 0)), False)
sketch14.addGeometry(Part.LineSegment(App.Vector(-17.674316, 6.4, 0), App.Vector(-14.325684, 6.4, 0)), False)
sketch14.addConstraint(Sketcher.Constraint("Coincident", 0, 2, 1, 1))
sketch14.addConstraint(Sketcher.Constraint("Coincident", 1, 2, 2, 1))
sketch14.addConstraint(Sketcher.Constraint("Coincident", 2, 2, 3, 1))
sketch14.addConstraint(Sketcher.Constraint("Coincident", 3, 2, 4, 1))
sketch14.addConstraint(Sketcher.Constraint("Coincident", 4, 2, 5, 1))
sketch14.addConstraint(Sketcher.Constraint("Coincident", 5, 2, 0, 1))
sketch14.addConstraint(Sketcher.Constraint("Coincident", 6, 2, 7, 1))
sketch14.addConstraint(Sketcher.Constraint("Coincident", 7, 2, 8, 1))
sketch14.addConstraint(Sketcher.Constraint("Coincident", 8, 2, 9, 1))
sketch14.addConstraint(Sketcher.Constraint("Coincident", 9, 2, 10, 1))
sketch14.addConstraint(Sketcher.Constraint("Coincident", 10, 2, 11, 1))
sketch14.addConstraint(Sketcher.Constraint("Coincident", 11, 2, 6, 1))
sketch14.addConstraint(Sketcher.Constraint("Coincident", 12, 2, 13, 1))
sketch14.addConstraint(Sketcher.Constraint("Coincident", 13, 2, 14, 1))
sketch14.addConstraint(Sketcher.Constraint("Coincident", 14, 2, 15, 1))
sketch14.addConstraint(Sketcher.Constraint("Coincident", 15, 2, 16, 1))
sketch14.addConstraint(Sketcher.Constraint("Coincident", 16, 2, 17, 1))
sketch14.addConstraint(Sketcher.Constraint("Coincident", 17, 2, 12, 1))
sketch14.addConstraint(Sketcher.Constraint("Coincident", 18, 2, 19, 1))
sketch14.addConstraint(Sketcher.Constraint("Coincident", 19, 2, 20, 1))
sketch14.addConstraint(Sketcher.Constraint("Coincident", 20, 2, 21, 1))
sketch14.addConstraint(Sketcher.Constraint("Coincident", 21, 2, 22, 1))
sketch14.addConstraint(Sketcher.Constraint("Coincident", 22, 2, 23, 1))
sketch14.addConstraint(Sketcher.Constraint("Coincident", 23, 2, 18, 1))
sketch14.addConstraint(Sketcher.Constraint("Horizontal", 2))
sketch14.addConstraint(Sketcher.Constraint("Horizontal", 5))
sketch14.addConstraint(Sketcher.Constraint("Horizontal", 8))
sketch14.addConstraint(Sketcher.Constraint("Horizontal", 11))
sketch14.addConstraint(Sketcher.Constraint("Horizontal", 14))
sketch14.addConstraint(Sketcher.Constraint("Horizontal", 17))
sketch14.addConstraint(Sketcher.Constraint("Horizontal", 20))
sketch14.addConstraint(Sketcher.Constraint("Horizontal", 23))
sketch14.addConstraint(Sketcher.Constraint("Symmetric", 3, 2, 6, 2, -2))
sketch14.addConstraint(Sketcher.Constraint("Symmetric", 2, 2, 7, 2, -2))
sketch14.addConstraint(Sketcher.Constraint("Symmetric", 0, 2, 9, 2, -2))
sketch14.addConstraint(Sketcher.Constraint("Symmetric", 5, 2, 10, 2, -2))
sketch14.addConstraint(Sketcher.Constraint("Symmetric", 15, 2, 18, 2, -2))
sketch14.addConstraint(Sketcher.Constraint("Symmetric", 14, 2, 19, 2, -2))
sketch14.addConstraint(Sketcher.Constraint("Symmetric", 12, 2, 21, 2, -2))
sketch14.addConstraint(Sketcher.Constraint("Symmetric", 17, 2, 22, 2, -2))
sketch14.addConstraint(Sketcher.Constraint("Parallel", 0, 3))
sketch14.addConstraint(Sketcher.Constraint("Parallel", 1, 4))
sketch14.addConstraint(Sketcher.Constraint("Parallel", 3, 6))
sketch14.addConstraint(Sketcher.Constraint("Parallel", 4, 7))
sketch14.addConstraint(Sketcher.Constraint("Parallel", 6, 9))
sketch14.addConstraint(Sketcher.Constraint("Parallel", 9, 12))
sketch14.addConstraint(Sketcher.Constraint("Parallel", 10, 13))
sketch14.addConstraint(Sketcher.Constraint("Parallel", 12, 15))
sketch14.addConstraint(Sketcher.Constraint("Parallel", 13, 16))
sketch14.addConstraint(Sketcher.Constraint("Parallel", 15, 18))
sketch14.addConstraint(Sketcher.Constraint("Parallel", 18, 21))
sketch14.addConstraint(Sketcher.Constraint("Horizontal", 0, 2, 3, 2))
sketch14.addConstraint(Sketcher.Constraint("Horizontal", 12, 2, 15, 2))
sketch14.addConstraint(Sketcher.Constraint("Vertical", 2, 2, 4, 2))
sketch14.addConstraint(Sketcher.Constraint("Vertical", 0, 2, 12, 2))
sketch14.addConstraint(Sketcher.Constraint("Vertical", 5, 2, 13, 2))
sketch14.addConstraint(Sketcher.Constraint("Vertical", 4, 2, 14, 2))
sketch14.addConstraint(Sketcher.Constraint("Vertical", 14, 2, 16, 2))
sketch14.addConstraint(Sketcher.Constraint("Angle", 0, Q("-60 deg")))
sketch14.addConstraint(Sketcher.Constraint("DistanceX", 7, 2, 1, 2, Q("32 mm")))
sketch14.addConstraint(Sketcher.Constraint("DistanceY", 0, 2, 12, 2, Q("10 mm")))
sketch14.addConstraint(Sketcher.Constraint("DistanceY", 0, 2, -1, 1, Q("6.5 mm")))
sketch14.addConstraint(Sketcher.Constraint("DistanceY", 1, 2, -1, 1, Q("9.4 mm")))
sketch14.addConstraint(Sketcher.Constraint("DistanceX", 2, 2, 2, 1, Q("3.348632 mm")))
pocket7 = body.newObject("PartDesign::Pocket", "Pocket006")
pocket7.Profile = sketch14
pocket7.setExpression("Length", "Params.pocket7_length")
pocket7.Reversed = True

doc.recompute()
